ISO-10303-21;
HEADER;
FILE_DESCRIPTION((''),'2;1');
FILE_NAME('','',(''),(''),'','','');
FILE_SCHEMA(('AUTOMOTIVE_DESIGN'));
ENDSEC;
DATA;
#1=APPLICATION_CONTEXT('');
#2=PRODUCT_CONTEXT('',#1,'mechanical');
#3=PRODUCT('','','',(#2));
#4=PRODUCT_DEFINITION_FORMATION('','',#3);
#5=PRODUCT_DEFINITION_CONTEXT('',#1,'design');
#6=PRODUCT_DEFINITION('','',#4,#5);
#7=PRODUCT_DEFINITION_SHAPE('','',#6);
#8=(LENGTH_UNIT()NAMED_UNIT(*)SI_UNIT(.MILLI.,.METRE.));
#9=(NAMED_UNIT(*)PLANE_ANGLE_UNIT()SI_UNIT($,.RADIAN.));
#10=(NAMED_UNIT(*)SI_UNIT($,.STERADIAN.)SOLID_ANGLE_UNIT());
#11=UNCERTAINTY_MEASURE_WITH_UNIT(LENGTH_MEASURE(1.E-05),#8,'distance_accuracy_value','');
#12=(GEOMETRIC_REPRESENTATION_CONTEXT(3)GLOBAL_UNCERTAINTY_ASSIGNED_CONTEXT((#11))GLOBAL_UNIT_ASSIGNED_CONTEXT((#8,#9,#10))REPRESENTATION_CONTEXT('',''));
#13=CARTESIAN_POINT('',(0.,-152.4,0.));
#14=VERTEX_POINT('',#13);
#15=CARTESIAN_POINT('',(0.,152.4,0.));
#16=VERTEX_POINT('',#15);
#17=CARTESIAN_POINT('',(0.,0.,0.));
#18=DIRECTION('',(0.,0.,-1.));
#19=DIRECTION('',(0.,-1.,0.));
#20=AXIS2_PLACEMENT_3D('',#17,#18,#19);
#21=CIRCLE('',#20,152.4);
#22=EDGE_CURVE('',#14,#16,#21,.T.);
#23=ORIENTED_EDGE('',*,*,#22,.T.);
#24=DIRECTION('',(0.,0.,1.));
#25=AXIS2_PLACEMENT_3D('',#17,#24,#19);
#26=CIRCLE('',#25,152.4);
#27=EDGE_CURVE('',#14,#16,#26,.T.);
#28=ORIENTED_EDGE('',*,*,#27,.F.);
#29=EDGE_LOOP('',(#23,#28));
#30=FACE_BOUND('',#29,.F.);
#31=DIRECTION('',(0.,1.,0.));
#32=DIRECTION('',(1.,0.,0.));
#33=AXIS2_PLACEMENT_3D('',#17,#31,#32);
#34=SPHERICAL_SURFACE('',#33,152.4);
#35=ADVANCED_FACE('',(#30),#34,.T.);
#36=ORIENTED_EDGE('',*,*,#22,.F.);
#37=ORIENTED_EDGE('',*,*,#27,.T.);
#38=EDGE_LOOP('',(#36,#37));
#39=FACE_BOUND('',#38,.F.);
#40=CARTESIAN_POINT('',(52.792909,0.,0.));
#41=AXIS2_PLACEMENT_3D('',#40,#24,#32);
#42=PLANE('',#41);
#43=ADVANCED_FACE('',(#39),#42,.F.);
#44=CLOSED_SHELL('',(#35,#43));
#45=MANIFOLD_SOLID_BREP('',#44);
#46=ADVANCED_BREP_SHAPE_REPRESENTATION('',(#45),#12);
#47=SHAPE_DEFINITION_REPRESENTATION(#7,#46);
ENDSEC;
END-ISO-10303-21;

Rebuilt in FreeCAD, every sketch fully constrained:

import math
import FreeCAD as App
import Part
import Sketcher
Q = App.Units.Quantity

doc = App.newDocument("Part")
body = doc.addObject("PartDesign::Body", "Body")

sketch1 = body.newObject("Sketcher::SketchObject", "Sketch")
sketch1.AttachmentSupport = (doc.getObject("XY_Plane"), [""])
sketch1.MapMode = "FlatFace"
sketch1.addGeometry(Part.LineSegment(App.Vector(0, 152.4, 0), App.Vector(0, -152.4, 0)), False)
sketch1.addGeometry(Part.ArcOfCircle(Part.Circle(App.Vector(0, 0, 0), App.Vector(0, 0, 1), 152.4), math.radians(-90), math.radians(90)), False)
sketch1.addConstraint(Sketcher.Constraint("Coincident", 0, 1, 1, 2))
sketch1.addConstraint(Sketcher.Constraint("Coincident", 1, 1, 0, 2))
sketch1.addConstraint(Sketcher.Constraint("Vertical", 0))
sketch1.addConstraint(Sketcher.Constraint("Coincident", 1, 3, -1, 1))
sketch1.addConstraint(Sketcher.Constraint("PointOnObject", 0, 1, -2))
sketch1.addConstraint(Sketcher.Constraint("Radius", 1, Q("6 in")))
revolution = body.newObject("PartDesign::Revolution", "Revolution")
revolution.Profile = sketch1
revolution.ReferenceAxis = (sketch1, ["V_Axis"])
revolution.Angle = 180
revolution.Reversed = True

doc.recompute()
